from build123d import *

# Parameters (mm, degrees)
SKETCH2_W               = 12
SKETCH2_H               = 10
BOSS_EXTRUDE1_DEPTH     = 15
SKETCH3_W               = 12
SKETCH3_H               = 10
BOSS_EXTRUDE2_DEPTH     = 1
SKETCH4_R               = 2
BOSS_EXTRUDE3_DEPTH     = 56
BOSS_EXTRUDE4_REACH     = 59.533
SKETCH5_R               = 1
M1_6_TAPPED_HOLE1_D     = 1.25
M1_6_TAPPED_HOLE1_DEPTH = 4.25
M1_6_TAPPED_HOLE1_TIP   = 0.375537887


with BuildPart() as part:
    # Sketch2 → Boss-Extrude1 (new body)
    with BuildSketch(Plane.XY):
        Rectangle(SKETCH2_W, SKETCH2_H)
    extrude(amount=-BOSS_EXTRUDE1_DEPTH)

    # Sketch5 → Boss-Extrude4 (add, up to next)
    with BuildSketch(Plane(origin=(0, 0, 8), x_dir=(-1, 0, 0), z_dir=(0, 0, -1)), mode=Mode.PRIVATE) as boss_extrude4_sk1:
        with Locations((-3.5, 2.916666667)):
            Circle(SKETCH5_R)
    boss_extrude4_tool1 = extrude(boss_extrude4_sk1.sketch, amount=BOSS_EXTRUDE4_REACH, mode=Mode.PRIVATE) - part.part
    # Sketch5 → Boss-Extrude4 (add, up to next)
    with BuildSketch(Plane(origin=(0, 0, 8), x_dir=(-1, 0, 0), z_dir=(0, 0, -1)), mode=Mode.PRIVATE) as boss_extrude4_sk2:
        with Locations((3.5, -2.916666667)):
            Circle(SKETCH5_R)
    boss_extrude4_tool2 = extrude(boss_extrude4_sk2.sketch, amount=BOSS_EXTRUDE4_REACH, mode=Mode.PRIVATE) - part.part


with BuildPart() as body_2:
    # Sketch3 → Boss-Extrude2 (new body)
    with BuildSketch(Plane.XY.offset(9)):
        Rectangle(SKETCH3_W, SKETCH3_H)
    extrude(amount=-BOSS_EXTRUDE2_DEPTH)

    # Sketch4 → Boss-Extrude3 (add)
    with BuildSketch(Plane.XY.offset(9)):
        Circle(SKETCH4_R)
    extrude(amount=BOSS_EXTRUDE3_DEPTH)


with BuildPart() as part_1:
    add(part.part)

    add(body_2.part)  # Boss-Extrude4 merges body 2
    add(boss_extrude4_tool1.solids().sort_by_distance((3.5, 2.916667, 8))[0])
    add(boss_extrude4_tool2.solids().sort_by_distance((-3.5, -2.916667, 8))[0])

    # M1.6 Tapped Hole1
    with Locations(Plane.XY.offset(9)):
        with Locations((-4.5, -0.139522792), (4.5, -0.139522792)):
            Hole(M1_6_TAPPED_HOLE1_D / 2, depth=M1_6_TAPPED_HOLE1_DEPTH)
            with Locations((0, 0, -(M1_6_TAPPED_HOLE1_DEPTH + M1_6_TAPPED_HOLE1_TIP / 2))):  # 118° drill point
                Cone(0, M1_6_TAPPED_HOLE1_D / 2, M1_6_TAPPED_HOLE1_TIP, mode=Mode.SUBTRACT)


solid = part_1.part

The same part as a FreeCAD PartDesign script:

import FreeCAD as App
import Part
import Sketcher

V = App.Vector

doc = App.newDocument("Part")
body = doc.addObject("PartDesign::Body", "Body")

# Sketch on XY plane
sketch1 = doc.addObject("Sketcher::SketchObject", "Sketch")
body.addObject(sketch1)
sketch1.AttachmentSupport = (doc.XY_Plane, [""])
sketch1.MapMode = "FlatFace"
sketch1.addGeometry(Part.LineSegment(V(-6, 5, 0), V(-6, -5, 0)), False)
sketch1.addGeometry(Part.LineSegment(V(-6, -5, 0), V(6, -5, 0)), False)
sketch1.addGeometry(Part.LineSegment(V(6, -5, 0), V(6, 5, 0)), False)
sketch1.addGeometry(Part.LineSegment(V(6, 5, 0), V(-6, 5, 0)), False)
sketch1.addConstraint(Sketcher.Constraint("Coincident", 0, 2, 1, 1))
sketch1.addConstraint(Sketcher.Constraint("Coincident", 1, 2, 2, 1))
sketch1.addConstraint(Sketcher.Constraint("Coincident", 2, 2, 3, 1))
sketch1.addConstraint(Sketcher.Constraint("Coincident", 3, 2, 0, 1))
sketch1.addConstraint(Sketcher.Constraint("Vertical", 0))
sketch1.addConstraint(Sketcher.Constraint("Horizontal", 1))
sketch1.addConstraint(Sketcher.Constraint("Vertical", 2))
sketch1.addConstraint(Sketcher.Constraint("Horizontal", 3))
sketch1.addConstraint(Sketcher.Constraint("Symmetric", 0, 2, 2, 2, -1, 1))
sketch1.addConstraint(Sketcher.Constraint("DistanceX", 1, 1, 1, 2, 12.0))
sketch1.addConstraint(Sketcher.Constraint("DistanceY", 0, 2, 0, 1, 10.0))
pad1 = doc.addObject("PartDesign::Pad", "Pad")
body.addObject(pad1)
pad1.Profile = sketch1
pad1.Length = 15
pad1.Reversed = True
body2 = doc.addObject("PartDesign::Body", "Body001")

# Sketch on XY plane
sketch2 = doc.addObject("Sketcher::SketchObject", "Sketch001")
body2.addObject(sketch2)
sketch2.AttachmentSupport = (doc.getObject("XY_Plane001"), [""])
sketch2.MapMode = "FlatFace"
sketch2.AttachmentOffset = App.Placement(V(0, 0, 9), App.Rotation())
sketch2.addGeometry(Part.LineSegment(V(-6, 5, 0), V(-6, -5, 0)), False)
sketch2.addGeometry(Part.LineSegment(V(-6, -5, 0), V(6, -5, 0)), False)
sketch2.addGeometry(Part.LineSegment(V(6, -5, 0), V(6, 5, 0)), False)
sketch2.addGeometry(Part.LineSegment(V(6, 5, 0), V(-6, 5, 0)), False)
sketch2.addConstraint(Sketcher.Constraint("Coincident", 0, 2, 1, 1))
sketch2.addConstraint(Sketcher.Constraint("Coincident", 1, 2, 2, 1))
sketch2.addConstraint(Sketcher.Constraint("Coincident", 2, 2, 3, 1))
sketch2.addConstraint(Sketcher.Constraint("Coincident", 3, 2, 0, 1))
sketch2.addConstraint(Sketcher.Constraint("Vertical", 0))
sketch2.addConstraint(Sketcher.Constraint("Horizontal", 1))
sketch2.addConstraint(Sketcher.Constraint("Vertical", 2))
sketch2.addConstraint(Sketcher.Constraint("Horizontal", 3))
sketch2.addConstraint(Sketcher.Constraint("Symmetric", 0, 2, 2, 2, -1, 1))
sketch2.addConstraint(Sketcher.Constraint("DistanceX", 1, 1, 1, 2, 12.0))
sketch2.addConstraint(Sketcher.Constraint("DistanceY", 0, 2, 0, 1, 10.0))
pad2 = doc.addObject("PartDesign::Pad", "Pad001")
body2.addObject(pad2)
pad2.Profile = sketch2
pad2.Length = 1
pad2.Reversed = True

# Sketch on XY plane
sketch3 = doc.addObject("Sketcher::SketchObject", "Sketch002")
body2.addObject(sketch3)
sketch3.AttachmentSupport = (doc.getObject("XY_Plane001"), [""])
sketch3.MapMode = "FlatFace"
sketch3.AttachmentOffset = App.Placement(V(0, 0, 9), App.Rotation())
sketch3.addGeometry(Part.Circle(V(0, 0, 0), V(0, 0, 1), 2), False)
sketch3.addConstraint(Sketcher.Constraint("Coincident", 0, 3, -1, 1))
sketch3.addConstraint(Sketcher.Constraint("Diameter", 0, 4.0))
pad3 = doc.addObject("PartDesign::Pad", "Pad002")
body2.addObject(pad3)
pad3.Profile = sketch3
pad3.Length = 56
body.AllowCompound = True
doc.recompute()

boolean = doc.addObject("PartDesign::Boolean", "Boolean")
body.addObject(boolean)
boolean.Type = "Fuse"
boolean.addObjects([body2])

# Sketch on XY plane
sketch4 = doc.addObject("Sketcher::SketchObject", "Sketch003")
body.addObject(sketch4)
sketch4.AttachmentSupport = (doc.XY_Plane, [""])
sketch4.MapMode = "FlatFace"
sketch4.AttachmentOffset = App.Placement(V(0, 0, 8), App.Rotation())
sketch4.addGeometry(Part.Circle(V(3.5, 2.916667, 0), V(0, 0, 1), 1), False)
sketch4.addConstraint(Sketcher.Constraint("Diameter", 0, 2.0))
sketch4.addConstraint(Sketcher.Constraint("DistanceX", -1, 1, 0, 3, 3.5))
sketch4.addConstraint(Sketcher.Constraint("DistanceY", -1, 1, 0, 3, 2.916667))
pad4 = doc.addObject("PartDesign::Pad", "Pad003")
body.addObject(pad4)
pad4.Profile = sketch4
pad4.Type = "UpToFirst"
pad4.Reversed = True

# Sketch on XY plane
sketch5 = doc.addObject("Sketcher::SketchObject", "Sketch004")
body.addObject(sketch5)
sketch5.AttachmentSupport = (doc.XY_Plane, [""])
sketch5.MapMode = "FlatFace"
sketch5.AttachmentOffset = App.Placement(V(0, 0, 8), App.Rotation())
sketch5.addGeometry(Part.Circle(V(-3.5, -2.916667, 0), V(0, 0, 1), 1), False)
sketch5.addConstraint(Sketcher.Constraint("Diameter", 0, 2.0))
sketch5.addConstraint(Sketcher.Constraint("DistanceX", 0, 3, -1, 1, 3.5))
sketch5.addConstraint(Sketcher.Constraint("DistanceY", 0, 3, -1, 1, 2.916667))
pad5 = doc.addObject("PartDesign::Pad", "Pad004")
body.addObject(pad5)
pad5.Profile = sketch5
pad5.Type = "UpToFirst"
pad5.Reversed = True

# Sketch on XY plane
sketch6 = doc.addObject("Sketcher::SketchObject", "Sketch005")
body.addObject(sketch6)
sketch6.AttachmentSupport = (doc.XY_Plane, [""])
sketch6.MapMode = "FlatFace"
sketch6.AttachmentOffset = App.Placement(V(0, 0, 9), App.Rotation())
sketch6.addGeometry(Part.Circle(V(-4.5, -0.139523, 0), V(0, 0, 1), 0.625), False)
sketch6.addGeometry(Part.Circle(V(4.5, -0.139523, 0), V(0, 0, 1), 0.625), False)
sketch6.addConstraint(Sketcher.Constraint("Equal", 0, 1))
sketch6.addConstraint(Sketcher.Constraint("Symmetric", 0, 3, 1, 3, -2))
sketch6.addConstraint(Sketcher.Constraint("Diameter", 0, 1.25))
sketch6.addConstraint(Sketcher.Constraint("DistanceX", 0, 3, 1, 3, 9.0))
sketch6.addConstraint(Sketcher.Constraint("DistanceY", 0, 3, -1, 1, 0.139523))
doc.recompute()
hole = doc.addObject("PartDesign::Hole", "Hole")
body.addObject(hole)
hole.Profile = sketch6
hole.ThreadType = "None"
hole.Diameter = 1.25
hole.DepthType = "Dimension"
hole.Depth = 4.25
hole.DrillPoint = "Angled"
hole.DrillPointAngle = 118

doc.recompute()
